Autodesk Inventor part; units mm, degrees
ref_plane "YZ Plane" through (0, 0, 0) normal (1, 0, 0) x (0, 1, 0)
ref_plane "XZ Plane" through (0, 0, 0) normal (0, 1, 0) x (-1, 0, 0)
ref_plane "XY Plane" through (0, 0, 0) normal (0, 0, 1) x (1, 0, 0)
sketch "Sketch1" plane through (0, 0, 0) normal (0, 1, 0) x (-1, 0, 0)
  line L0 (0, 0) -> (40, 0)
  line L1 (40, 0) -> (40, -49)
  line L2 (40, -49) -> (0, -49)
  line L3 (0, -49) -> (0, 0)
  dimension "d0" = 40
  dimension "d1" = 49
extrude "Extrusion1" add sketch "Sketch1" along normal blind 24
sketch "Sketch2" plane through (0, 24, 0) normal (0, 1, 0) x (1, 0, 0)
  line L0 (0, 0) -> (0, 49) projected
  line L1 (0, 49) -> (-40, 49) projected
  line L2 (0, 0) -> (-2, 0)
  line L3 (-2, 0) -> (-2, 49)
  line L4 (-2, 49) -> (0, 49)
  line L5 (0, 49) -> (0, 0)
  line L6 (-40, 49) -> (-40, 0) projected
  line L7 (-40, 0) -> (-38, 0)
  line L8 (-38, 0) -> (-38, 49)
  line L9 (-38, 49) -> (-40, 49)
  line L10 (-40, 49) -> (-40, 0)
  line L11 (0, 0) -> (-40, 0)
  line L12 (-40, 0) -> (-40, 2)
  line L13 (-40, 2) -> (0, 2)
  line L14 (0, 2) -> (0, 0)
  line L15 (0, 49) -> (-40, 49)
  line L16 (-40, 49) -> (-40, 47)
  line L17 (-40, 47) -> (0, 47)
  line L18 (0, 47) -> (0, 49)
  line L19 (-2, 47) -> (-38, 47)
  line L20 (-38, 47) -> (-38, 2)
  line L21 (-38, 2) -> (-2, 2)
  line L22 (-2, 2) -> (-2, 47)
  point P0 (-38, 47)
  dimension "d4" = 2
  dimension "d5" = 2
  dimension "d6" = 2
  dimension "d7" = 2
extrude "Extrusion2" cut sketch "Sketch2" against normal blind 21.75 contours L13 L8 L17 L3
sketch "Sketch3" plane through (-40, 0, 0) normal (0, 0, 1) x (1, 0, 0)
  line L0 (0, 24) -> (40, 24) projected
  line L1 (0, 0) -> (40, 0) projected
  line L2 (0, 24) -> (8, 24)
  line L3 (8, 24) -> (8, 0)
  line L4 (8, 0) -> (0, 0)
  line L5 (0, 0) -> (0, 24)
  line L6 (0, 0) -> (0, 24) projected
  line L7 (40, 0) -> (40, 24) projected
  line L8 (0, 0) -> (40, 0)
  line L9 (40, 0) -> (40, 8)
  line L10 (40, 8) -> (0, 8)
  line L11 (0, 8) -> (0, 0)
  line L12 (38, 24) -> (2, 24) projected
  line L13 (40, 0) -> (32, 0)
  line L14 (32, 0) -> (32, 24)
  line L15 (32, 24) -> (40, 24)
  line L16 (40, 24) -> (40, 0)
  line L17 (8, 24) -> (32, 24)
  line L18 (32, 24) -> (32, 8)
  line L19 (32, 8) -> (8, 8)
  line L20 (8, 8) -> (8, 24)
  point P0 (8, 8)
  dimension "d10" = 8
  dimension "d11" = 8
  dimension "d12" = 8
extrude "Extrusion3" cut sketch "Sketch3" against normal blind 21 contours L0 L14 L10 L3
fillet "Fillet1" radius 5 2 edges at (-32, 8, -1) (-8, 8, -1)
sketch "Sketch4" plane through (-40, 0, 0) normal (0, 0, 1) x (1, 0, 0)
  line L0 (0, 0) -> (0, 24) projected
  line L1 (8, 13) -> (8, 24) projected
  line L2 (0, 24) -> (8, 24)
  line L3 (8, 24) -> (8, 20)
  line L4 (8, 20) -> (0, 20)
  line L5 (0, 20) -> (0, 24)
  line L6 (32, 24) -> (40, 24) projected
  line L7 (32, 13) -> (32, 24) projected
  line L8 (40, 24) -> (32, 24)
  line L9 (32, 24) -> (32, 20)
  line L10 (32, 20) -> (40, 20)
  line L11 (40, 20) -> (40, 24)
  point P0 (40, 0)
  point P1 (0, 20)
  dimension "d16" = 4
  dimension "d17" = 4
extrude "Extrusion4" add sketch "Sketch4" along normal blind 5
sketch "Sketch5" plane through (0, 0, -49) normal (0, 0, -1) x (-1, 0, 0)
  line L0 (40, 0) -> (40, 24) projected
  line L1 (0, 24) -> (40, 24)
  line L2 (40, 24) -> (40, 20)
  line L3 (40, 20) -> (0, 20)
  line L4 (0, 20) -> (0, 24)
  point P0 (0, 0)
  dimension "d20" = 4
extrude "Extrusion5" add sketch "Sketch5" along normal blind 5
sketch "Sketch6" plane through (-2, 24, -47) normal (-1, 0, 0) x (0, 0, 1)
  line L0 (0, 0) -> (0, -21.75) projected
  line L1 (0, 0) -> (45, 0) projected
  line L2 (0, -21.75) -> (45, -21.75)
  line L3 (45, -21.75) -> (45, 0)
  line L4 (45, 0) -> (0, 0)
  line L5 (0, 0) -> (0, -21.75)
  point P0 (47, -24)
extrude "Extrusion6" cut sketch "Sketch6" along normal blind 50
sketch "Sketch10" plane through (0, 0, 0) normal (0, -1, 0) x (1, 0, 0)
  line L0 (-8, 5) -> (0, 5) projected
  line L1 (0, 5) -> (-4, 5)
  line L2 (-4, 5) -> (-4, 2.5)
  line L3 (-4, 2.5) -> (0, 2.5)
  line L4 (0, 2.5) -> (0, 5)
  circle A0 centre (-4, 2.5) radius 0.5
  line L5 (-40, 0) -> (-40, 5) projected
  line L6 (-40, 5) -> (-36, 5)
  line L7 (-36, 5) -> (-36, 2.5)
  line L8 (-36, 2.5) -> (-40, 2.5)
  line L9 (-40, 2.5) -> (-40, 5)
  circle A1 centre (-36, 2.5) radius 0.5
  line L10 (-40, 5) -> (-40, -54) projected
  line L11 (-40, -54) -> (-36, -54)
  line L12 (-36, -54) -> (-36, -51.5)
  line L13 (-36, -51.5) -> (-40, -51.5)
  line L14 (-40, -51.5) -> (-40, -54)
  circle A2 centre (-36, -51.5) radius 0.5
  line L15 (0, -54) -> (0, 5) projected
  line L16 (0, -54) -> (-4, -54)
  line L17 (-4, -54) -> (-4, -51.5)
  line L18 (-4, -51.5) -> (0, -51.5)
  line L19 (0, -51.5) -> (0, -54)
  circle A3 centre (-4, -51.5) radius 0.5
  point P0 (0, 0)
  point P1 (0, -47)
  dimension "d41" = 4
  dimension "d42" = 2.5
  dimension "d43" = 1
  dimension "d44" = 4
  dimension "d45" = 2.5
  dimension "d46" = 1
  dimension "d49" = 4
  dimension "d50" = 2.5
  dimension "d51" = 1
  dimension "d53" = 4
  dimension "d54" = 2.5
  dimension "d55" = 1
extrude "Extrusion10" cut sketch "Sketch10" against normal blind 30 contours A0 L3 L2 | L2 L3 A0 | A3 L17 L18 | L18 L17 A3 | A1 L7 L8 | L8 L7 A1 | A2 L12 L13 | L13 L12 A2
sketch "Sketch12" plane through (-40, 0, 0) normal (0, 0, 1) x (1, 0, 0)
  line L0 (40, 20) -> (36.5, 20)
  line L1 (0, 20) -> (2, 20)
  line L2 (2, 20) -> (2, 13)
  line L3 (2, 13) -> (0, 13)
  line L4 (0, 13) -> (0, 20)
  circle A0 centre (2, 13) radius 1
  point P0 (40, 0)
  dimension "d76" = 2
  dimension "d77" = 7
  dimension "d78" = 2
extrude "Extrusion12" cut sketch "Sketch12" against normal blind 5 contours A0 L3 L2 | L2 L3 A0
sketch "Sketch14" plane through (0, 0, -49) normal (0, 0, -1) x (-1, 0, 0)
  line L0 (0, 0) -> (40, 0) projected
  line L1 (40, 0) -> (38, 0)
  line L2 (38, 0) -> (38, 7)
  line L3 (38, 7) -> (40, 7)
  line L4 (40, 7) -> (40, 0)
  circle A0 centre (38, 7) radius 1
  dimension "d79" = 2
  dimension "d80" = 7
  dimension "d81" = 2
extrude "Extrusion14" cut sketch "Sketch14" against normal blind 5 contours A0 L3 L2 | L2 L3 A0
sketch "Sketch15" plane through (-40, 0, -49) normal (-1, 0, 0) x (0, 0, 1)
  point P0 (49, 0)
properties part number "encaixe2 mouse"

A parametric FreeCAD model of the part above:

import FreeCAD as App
import Part
import Sketcher
Q = App.Units.Quantity


def edges_at(feature, points):
    """Names of the edges that pass closest to the given points."""
    edges = feature.Shape.Edges
    near = lambda p: min(range(len(edges)), key=lambda i: edges[i].distToShape(Part.Vertex(*p))[0])
    return sorted({f"Edge{near(p) + 1}" for p in points})


def add_polygon(sketch, points):
    """Adds a closed chain of lines whose ends are joined by coincident constraints."""
    first, n = sketch.GeometryCount, len(points)
    for a, b in zip(points, points[1:] + points[:1]):
        sketch.addGeometry(Part.LineSegment(App.Vector(*a, 0), App.Vector(*b, 0)), False)
    for i in range(n):
        sketch.addConstraint(Sketcher.Constraint("Coincident", first + i, 2, first + (i + 1) % n, 1))

doc = App.newDocument("Part")
body = doc.addObject("PartDesign::Body", "Body")

# Sketch on XZ plane
sketch1 = body.newObject("Sketcher::SketchObject", "Sketch")
sketch1.AttachmentSupport = (doc.getObject("XZ_Plane"), [""])
sketch1.MapMode = "FlatFace"
add_polygon(sketch1, [(-40, 0), (0, 0), (0, -49), (-40, -49)])  # lines 0-3
sketch1.addConstraint([
    Sketcher.Constraint("Horizontal", 0),
    Sketcher.Constraint("Vertical", 1),
    Sketcher.Constraint("Horizontal", 2),
    Sketcher.Constraint("Vertical", 3),
    Sketcher.Constraint("Coincident", 0, 2, -1, 1),
    Sketcher.Constraint("DistanceX", 0, 1, 0, 2, Q("40 mm")),
    Sketcher.Constraint("DistanceY", 1, 2, 1, 1, Q("49 mm")),
])
pad1 = body.newObject("PartDesign::Pad", "Pad")
pad1.Profile = sketch1
pad1.Length = 24
pad1.Reversed = True

# Sketch on XZ plane
sketch2 = body.newObject("Sketcher::SketchObject", "Sketch001")
sketch2.AttachmentSupport = (doc.getObject("XZ_Plane"), [""])
sketch2.MapMode = "FlatFace"
sketch2.AttachmentOffset = App.Placement(App.Vector(0, 0, -24), App.Rotation())
add_polygon(sketch2, [(-38, -2), (-2, -2), (-2, -47), (-38, -47)])  # lines 0-3
sketch2.addConstraint([
    Sketcher.Constraint("Horizontal", 0),
    Sketcher.Constraint("Vertical", 1),
    Sketcher.Constraint("Horizontal", 2),
    Sketcher.Constraint("Vertical", 3),
    Sketcher.Constraint("DistanceX", 0, 2, -1, 1, Q("2 mm")),
    Sketcher.Constraint("DistanceY", 0, 2, -1, 1, Q("2 mm")),
    Sketcher.Constraint("DistanceX", 0, 1, 0, 2, Q("36 mm")),
    Sketcher.Constraint("DistanceY", 1, 2, 1, 1, Q("45 mm")),
])
pocket1 = body.newObject("PartDesign::Pocket", "Pocket")
pocket1.Profile = sketch2
pocket1.Length = 21.75
pocket1.Reversed = True

# Sketch on XY plane
sketch3 = body.newObject("Sketcher::SketchObject", "Sketch002")
sketch3.AttachmentSupport = (doc.getObject("XY_Plane"), [""])
sketch3.MapMode = "FlatFace"
add_polygon(sketch3, [(-8, 24), (-32, 24), (-32, 8), (-8, 8)])  # lines 0-3
sketch3.addConstraint([
    Sketcher.Constraint("Horizontal", 0),
    Sketcher.Constraint("Vertical", 1),
    Sketcher.Constraint("Horizontal", 2),
    Sketcher.Constraint("Vertical", 3),
    Sketcher.Constraint("DistanceY", -1, 1, 1, 2, Q("8 mm")),
    Sketcher.Constraint("DistanceX", 2, 2, -1, 1, Q("8 mm")),
    Sketcher.Constraint("DistanceX", 0, 2, 0, 1, Q("24 mm")),
    Sketcher.Constraint("DistanceY", 1, 2, 1, 1, Q("16 mm")),
])
pocket2 = body.newObject("PartDesign::Pocket", "Pocket001")
pocket2.Profile = sketch3
pocket2.Length = 21
doc.recompute()

fillet = body.newObject("PartDesign::Fillet", "Fillet")
fillet.Base = (pocket2, edges_at(pocket2, [(-32, 8, -1), (-8, 8, -1)]))
fillet.Radius = 5

# Sketch on XY plane
sketch4 = body.newObject("Sketcher::SketchObject", "Sketch003")
sketch4.AttachmentSupport = (doc.getObject("XY_Plane"), [""])
sketch4.MapMode = "FlatFace"
add_polygon(sketch4, [(-40, 24), (-40, 20), (-32, 20), (-32, 24)])  # lines 0-3
add_polygon(sketch4, [(0, 24), (-8, 24), (-8, 20), (0, 20)])  # lines 4-7
sketch4.addConstraint([
    Sketcher.Constraint("Vertical", 0),
    Sketcher.Constraint("Horizontal", 1),
    Sketcher.Constraint("Vertical", 2),
    Sketcher.Constraint("Horizontal", 3),
    Sketcher.Constraint("Horizontal", 4),
    Sketcher.Constraint("Vertical", 5),
    Sketcher.Constraint("Horizontal", 6),
    Sketcher.Constraint("Vertical", 7),
    Sketcher.Constraint("PointOnObject", 6, 2, -2),
    Sketcher.Constraint("Horizontal", 3, 2, 4, 2),
    Sketcher.Constraint("Horizontal", 1, 2, 5, 2),
    Sketcher.Constraint("Equal", 3, 4),
    Sketcher.Constraint("DistanceY", 0, 2, 0, 1, Q("4 mm")),
    Sketcher.Constraint("DistanceX", 1, 1, 1, 2, Q("8 mm")),
    Sketcher.Constraint("DistanceX", 0, 2, -1, 1, Q("40 mm")),
    Sketcher.Constraint("DistanceY", -1, 1, 0, 2, Q("20 mm")),
])
pad2 = body.newObject("PartDesign::Pad", "Pad001")
pad2.Profile = sketch4
pad2.Length = 5

# Sketch on XY plane
sketch5 = body.newObject("Sketcher::SketchObject", "Sketch004")
sketch5.AttachmentSupport = (doc.getObject("XY_Plane"), [""])
sketch5.MapMode = "FlatFace"
sketch5.AttachmentOffset = App.Placement(App.Vector(0, 0, -49), App.Rotation())
add_polygon(sketch5, [(0, 20), (-40, 20), (-40, 24), (0, 24)])  # lines 0-3
sketch5.addConstraint([
    Sketcher.Constraint("Horizontal", 0),
    Sketcher.Constraint("Vertical", 1),
    Sketcher.Constraint("Horizontal", 2),
    Sketcher.Constraint("Vertical", 3),
    Sketcher.Constraint("PointOnObject", 2, 2, -2),
    Sketcher.Constraint("DistanceY", 1, 1, 1, 2, Q("4 mm")),
    Sketcher.Constraint("DistanceX", 0, 2, 0, 1, Q("40 mm")),
    Sketcher.Constraint("DistanceY", -1, 1, 0, 2, Q("20 mm")),
])
pad3 = body.newObject("PartDesign::Pad", "Pad002")
pad3.Profile = sketch5
pad3.Length = 5
pad3.Reversed = True

# Sketch on YZ plane
sketch6 = body.newObject("Sketcher::SketchObject", "Sketch005")
sketch6.AttachmentSupport = (doc.getObject("YZ_Plane"), [""])
sketch6.MapMode = "FlatFace"
sketch6.AttachmentOffset = App.Placement(App.Vector(0, 0, -2), App.Rotation())
add_polygon(sketch6, [(24, -2), (24, -47), (2, -47), (2, -2)])  # lines 0-3
sketch6.addConstraint([
    Sketcher.Constraint("Vertical", 0),
    Sketcher.Constraint("Horizontal", 1),
    Sketcher.Constraint("Vertical", 2),
    Sketcher.Constraint("Horizontal", 3),
    Sketcher.Constraint("DistanceY", 0, 2, 0, 1, Q("45 mm")),
    Sketcher.Constraint("DistanceX", -1, 1, 0, 2, Q("24 mm")),
    Sketcher.Constraint("DistanceY", 0, 2, -1, 1, Q("47 mm")),
    Sketcher.Constraint("DistanceX", 1, 2, 1, 1, Q("21.75 mm")),
])
pocket3 = body.newObject("PartDesign::Pocket", "Pocket002")
pocket3.Profile = sketch6
pocket3.Length = 50

# Sketch on XZ plane
sketch7 = body.newObject("Sketcher::SketchObject", "Sketch006")
sketch7.AttachmentSupport = (doc.getObject("XZ_Plane"), [""])
sketch7.MapMode = "FlatFace"
sketch7.addGeometry([
    Part.Circle(App.Vector(-4, 2.5, 0), App.Vector(0, 0, 1), 0.5),
    Part.Circle(App.Vector(-4, -51.5, 0), App.Vector(0, 0, 1), 0.5),
    Part.Circle(App.Vector(-36, 2.5, 0), App.Vector(0, 0, 1), 0.5),
    Part.Circle(App.Vector(-36, -51.5, 0), App.Vector(0, 0, 1), 0.5),
], False)
sketch7.addConstraint([
    Sketcher.Constraint("Equal", 0, 1),
    Sketcher.Constraint("Equal", 1, 2),
    Sketcher.Constraint("Equal", 2, 3),
    Sketcher.Constraint("Horizontal", 0, 3, 2, 3),
    Sketcher.Constraint("Horizontal", 1, 3, 3, 3),
    Sketcher.Constraint("Vertical", 0, 3, 1, 3),
    Sketcher.Constraint("Vertical", 2, 3, 3, 3),
    Sketcher.Constraint("Diameter", 0, Q("1 mm")),
    Sketcher.Constraint("DistanceX", 0, 3, -1, 1, Q("4 mm")),
    Sketcher.Constraint("DistanceY", -1, 1, 0, 3, Q("2.5 mm")),
    Sketcher.Constraint("DistanceX", 2, 3, -1, 1, Q("36 mm")),
    Sketcher.Constraint("DistanceY", 1, 3, 0, 3, Q("54 mm")),
])
pocket4 = body.newObject("PartDesign::Pocket", "Pocket003")
pocket4.Profile = sketch7
pocket4.Length = 30

# Sketch on XY plane
sketch8 = body.newObject("Sketcher::SketchObject", "Sketch007")
sketch8.AttachmentSupport = (doc.getObject("XY_Plane"), [""])
sketch8.MapMode = "FlatFace"
sketch8.addGeometry(Part.Circle(App.Vector(-38, 13, 0), App.Vector(0, 0, 1), 1), False)
sketch8.addConstraint([
    Sketcher.Constraint("Diameter", 0, Q("2 mm")),
    Sketcher.Constraint("DistanceX", 0, 3, -1, 1, Q("38 mm")),
    Sketcher.Constraint("DistanceY", -1, 1, 0, 3, Q("13 mm")),
])
pocket5 = body.newObject("PartDesign::Pocket", "Pocket004")
pocket5.Profile = sketch8
pocket5.Length = 5

# Sketch on XY plane
sketch9 = body.newObject("Sketcher::SketchObject", "Sketch008")
sketch9.AttachmentSupport = (doc.getObject("XY_Plane"), [""])
sketch9.MapMode = "FlatFace"
sketch9.AttachmentOffset = App.Placement(App.Vector(0, 0, -49), App.Rotation())
sketch9.addGeometry(Part.Circle(App.Vector(-38, 7, 0), App.Vector(0, 0, 1), 1), False)
sketch9.addConstraint([
    Sketcher.Constraint("Diameter", 0, Q("2 mm")),
    Sketcher.Constraint("DistanceY", -1, 1, 0, 3, Q("7 mm")),
    Sketcher.Constraint("DistanceX", 0, 3, -1, 1, Q("38 mm")),
])
pocket6 = body.newObject("PartDesign::Pocket", "Pocket005")
pocket6.Profile = sketch9
pocket6.Length = 5
pocket6.Reversed = True

doc.recompute()
